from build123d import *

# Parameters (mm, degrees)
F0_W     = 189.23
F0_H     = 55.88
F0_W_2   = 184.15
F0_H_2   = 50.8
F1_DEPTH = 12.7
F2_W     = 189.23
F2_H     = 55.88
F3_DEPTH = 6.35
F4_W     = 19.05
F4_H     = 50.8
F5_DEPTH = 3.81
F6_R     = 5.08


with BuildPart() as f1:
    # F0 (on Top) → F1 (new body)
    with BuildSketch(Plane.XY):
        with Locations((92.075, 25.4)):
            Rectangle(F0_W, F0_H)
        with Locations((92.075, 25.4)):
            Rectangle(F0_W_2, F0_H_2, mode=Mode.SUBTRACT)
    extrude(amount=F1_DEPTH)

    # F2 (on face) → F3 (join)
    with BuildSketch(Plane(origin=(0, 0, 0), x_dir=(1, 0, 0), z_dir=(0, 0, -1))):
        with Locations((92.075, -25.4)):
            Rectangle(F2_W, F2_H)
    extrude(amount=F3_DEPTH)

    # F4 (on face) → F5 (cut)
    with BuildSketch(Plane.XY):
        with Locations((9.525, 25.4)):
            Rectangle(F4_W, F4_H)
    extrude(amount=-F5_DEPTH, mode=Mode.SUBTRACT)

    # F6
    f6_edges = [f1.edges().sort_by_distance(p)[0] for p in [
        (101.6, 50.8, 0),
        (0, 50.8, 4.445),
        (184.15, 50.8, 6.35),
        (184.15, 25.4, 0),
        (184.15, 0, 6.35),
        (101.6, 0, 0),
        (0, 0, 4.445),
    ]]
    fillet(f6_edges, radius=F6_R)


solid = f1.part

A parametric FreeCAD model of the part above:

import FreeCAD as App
import Part
import Sketcher

V = App.Vector
Q = App.Units.Quantity


def edges_at(feature, points):
    """Names of the edges that pass closest to the given points."""
    edges = feature.Shape.Edges
    near = lambda p: min(range(len(edges)), key=lambda i: edges[i].distToShape(Part.Vertex(*p))[0])
    return sorted({f"Edge{near(p) + 1}" for p in points})

doc = App.newDocument("Part")
params = doc.addObject("Spreadsheet::Sheet", "Params")
for row, (alias, value) in enumerate([
    ("sketch1_height", "2 in"),
    ("sketch1_height2", "2.2 in"),
    ("sketch1_width", "7.45 in"),
    ("sketch1_width2", "7.25 in"),
    ("pad1_length", "0.5 in"),
    ("sketch2_height", "2.2 in"),
    ("sketch2_width", "7.45 in"),
    ("pad2_length", "0.25 in"),
    ("sketch3_height", "2 in"),
    ("sketch3_width", "0.75 in"),
    ("pocket1_length", "0.15 in"),
    ("fillet_radius", "0.2 in"),
], start=1):
    params.set(f"A{row}", alias)
    params.set(f"B{row}", "=" + value)
    params.setAlias(f"B{row}", alias)

body = doc.addObject("PartDesign::Body", "Body")

# Sketch on XY plane
sketch1 = doc.addObject("Sketcher::SketchObject", "Sketch")
body.addObject(sketch1)
sketch1.AttachmentSupport = (doc.XY_Plane, [""])
sketch1.MapMode = "FlatFace"
sketch1.addGeometry([
    Part.LineSegment(V(-3, 53, 0), V(-3, -3, 0)),  # 0
    Part.LineSegment(V(-3, -3, 0), V(187, -3, 0)),  # 1
    Part.LineSegment(V(187, -3, 0), V(187, 53, 0)),  # 2
    Part.LineSegment(V(187, 53, 0), V(-3, 53, 0)),  # 3
    Part.LineSegment(V(184, 0, 0), V(0, 0, 0)),  # 4
    Part.LineSegment(V(0, 0, 0), V(0, 51, 0)),  # 5
    Part.LineSegment(V(0, 51, 0), V(184, 51, 0)),  # 6
    Part.LineSegment(V(184, 51, 0), V(184, 0, 0)),  # 7
], False)
sketch1.addConstraint([
    Sketcher.Constraint("Coincident", 0, 2, 1, 1),
    Sketcher.Constraint("Coincident", 1, 2, 2, 1),
    Sketcher.Constraint("Coincident", 2, 2, 3, 1),
    Sketcher.Constraint("Coincident", 3, 2, 0, 1),
    Sketcher.Constraint("Coincident", 4, 2, 5, 1),
    Sketcher.Constraint("Coincident", 5, 2, 6, 1),
    Sketcher.Constraint("Coincident", 6, 2, 7, 1),
    Sketcher.Constraint("Coincident", 7, 2, 4, 1),
    Sketcher.Constraint("Vertical", 0),
    Sketcher.Constraint("Horizontal", 1),
    Sketcher.Constraint("Vertical", 2),
    Sketcher.Constraint("Horizontal", 3),
    Sketcher.Constraint("Horizontal", 4),
    Sketcher.Constraint("Vertical", 5),
    Sketcher.Constraint("Horizontal", 6),
    Sketcher.Constraint("Vertical", 7),
    Sketcher.Constraint("Coincident", 4, 2, -1, 1),
    Sketcher.Constraint("DistanceY", 5, 1, 5, 2, Q("2 in")),
    Sketcher.Constraint("DistanceY", 0, 2, 0, 1, Q("2.2 in")),
    Sketcher.Constraint("DistanceX", 1, 1, 1, 2, Q("7.45 in")),
    Sketcher.Constraint("DistanceX", 4, 2, 4, 1, Q("7.25 in")),
    Sketcher.Constraint("DistanceX", 0, 2, -1, 1, Q("0.1 in")),
    Sketcher.Constraint("DistanceY", 0, 2, -1, 1, Q("0.1 in")),
])
sketch1.setExpression("Constraints[17]", "Params.sketch1_height")
sketch1.setExpression("Constraints[18]", "Params.sketch1_height2")
sketch1.setExpression("Constraints[19]", "Params.sketch1_width")
sketch1.setExpression("Constraints[20]", "Params.sketch1_width2")
pad1 = doc.addObject("PartDesign::Pad", "Pad")
body.addObject(pad1)
pad1.Profile = sketch1
pad1.setExpression("Length", "Params.pad1_length")

# Sketch on XY plane
sketch2 = doc.addObject("Sketcher::SketchObject", "Sketch001")
body.addObject(sketch2)
sketch2.AttachmentSupport = (doc.XY_Plane, [""])
sketch2.MapMode = "FlatFace"
sketch2.addGeometry([
    Part.LineSegment(V(-3, -3, 0), V(-3, 53, 0)),
    Part.LineSegment(V(-3, 53, 0), V(187, 53, 0)),
    Part.LineSegment(V(187, 53, 0), V(187, -3, 0)),
    Part.LineSegment(V(187, -3, 0), V(-3, -3, 0)),
], False)
sketch2.addConstraint([
    Sketcher.Constraint("Coincident", 0, 2, 1, 1),
    Sketcher.Constraint("Coincident", 1, 2, 2, 1),
    Sketcher.Constraint("Coincident", 2, 2, 3, 1),
    Sketcher.Constraint("Coincident", 3, 2, 0, 1),
    Sketcher.Constraint("Vertical", 0),
    Sketcher.Constraint("Horizontal", 1),
    Sketcher.Constraint("Vertical", 2),
    Sketcher.Constraint("Horizontal", 3),
    Sketcher.Constraint("DistanceY", 0, 1, 0, 2, Q("2.2 in")),
    Sketcher.Constraint("DistanceX", 1, 1, 1, 2, Q("7.45 in")),
    Sketcher.Constraint("DistanceX", 0, 2, -1, 1, Q("0.1 in")),
    Sketcher.Constraint("DistanceY", -1, 1, 0, 2, Q("2.1 in")),
])
sketch2.setExpression("Constraints[8]", "Params.sketch2_height")
sketch2.setExpression("Constraints[9]", "Params.sketch2_width")
pad2 = doc.addObject("PartDesign::Pad", "Pad001")
body.addObject(pad2)
pad2.Profile = sketch2
pad2.setExpression("Length", "Params.pad2_length")
pad2.Reversed = True

# Sketch on XY plane
sketch3 = doc.addObject("Sketcher::SketchObject", "Sketch002")
body.addObject(sketch3)
sketch3.AttachmentSupport = (doc.XY_Plane, [""])
sketch3.MapMode = "FlatFace"
sketch3.addGeometry([
    Part.LineSegment(V(0, 51, 0), V(0, 0, 0)),
    Part.LineSegment(V(0, 0, 0), V(19, 0, 0)),
    Part.LineSegment(V(19, 0, 0), V(19, 51, 0)),
    Part.LineSegment(V(19, 51, 0), V(0, 51, 0)),
], False)
sketch3.addConstraint([
    Sketcher.Constraint("Coincident", 0, 2, 1, 1),
    Sketcher.Constraint("Coincident", 1, 2, 2, 1),
    Sketcher.Constraint("Coincident", 2, 2, 3, 1),
    Sketcher.Constraint("Coincident", 3, 2, 0, 1),
    Sketcher.Constraint("Vertical", 0),
    Sketcher.Constraint("Horizontal", 1),
    Sketcher.Constraint("Vertical", 2),
    Sketcher.Constraint("Horizontal", 3),
    Sketcher.Constraint("Coincident", 0, 2, -1, 1),
    Sketcher.Constraint("DistanceY", 0, 2, 0, 1, Q("2 in")),
    Sketcher.Constraint("DistanceX", 1, 1, 1, 2, Q("0.75 in")),
])
sketch3.setExpression("Constraints[9]", "Params.sketch3_height")
sketch3.setExpression("Constraints[10]", "Params.sketch3_width")
pocket1 = doc.addObject("PartDesign::Pocket", "Pocket")
body.addObject(pocket1)
pocket1.Profile = sketch3
pocket1.setExpression("Length", "Params.pocket1_length")
doc.recompute()

fillet = doc.addObject("PartDesign::Fillet", "Fillet")
body.addObject(fillet)
fillet.Base = (pocket1, edges_at(pocket1, [
    (101.6, 50.8, 0),
    (0, 50.8, 4.445),
    (184.15, 50.8, 6.35),
    (184.15, 25.4, 0),
    (184.15, 0, 6.35),
    (101.6, 0, 0),
    (0, 0, 4.445),
]))
fillet.setExpression("Radius", "Params.fillet_radius")

doc.recompute()
